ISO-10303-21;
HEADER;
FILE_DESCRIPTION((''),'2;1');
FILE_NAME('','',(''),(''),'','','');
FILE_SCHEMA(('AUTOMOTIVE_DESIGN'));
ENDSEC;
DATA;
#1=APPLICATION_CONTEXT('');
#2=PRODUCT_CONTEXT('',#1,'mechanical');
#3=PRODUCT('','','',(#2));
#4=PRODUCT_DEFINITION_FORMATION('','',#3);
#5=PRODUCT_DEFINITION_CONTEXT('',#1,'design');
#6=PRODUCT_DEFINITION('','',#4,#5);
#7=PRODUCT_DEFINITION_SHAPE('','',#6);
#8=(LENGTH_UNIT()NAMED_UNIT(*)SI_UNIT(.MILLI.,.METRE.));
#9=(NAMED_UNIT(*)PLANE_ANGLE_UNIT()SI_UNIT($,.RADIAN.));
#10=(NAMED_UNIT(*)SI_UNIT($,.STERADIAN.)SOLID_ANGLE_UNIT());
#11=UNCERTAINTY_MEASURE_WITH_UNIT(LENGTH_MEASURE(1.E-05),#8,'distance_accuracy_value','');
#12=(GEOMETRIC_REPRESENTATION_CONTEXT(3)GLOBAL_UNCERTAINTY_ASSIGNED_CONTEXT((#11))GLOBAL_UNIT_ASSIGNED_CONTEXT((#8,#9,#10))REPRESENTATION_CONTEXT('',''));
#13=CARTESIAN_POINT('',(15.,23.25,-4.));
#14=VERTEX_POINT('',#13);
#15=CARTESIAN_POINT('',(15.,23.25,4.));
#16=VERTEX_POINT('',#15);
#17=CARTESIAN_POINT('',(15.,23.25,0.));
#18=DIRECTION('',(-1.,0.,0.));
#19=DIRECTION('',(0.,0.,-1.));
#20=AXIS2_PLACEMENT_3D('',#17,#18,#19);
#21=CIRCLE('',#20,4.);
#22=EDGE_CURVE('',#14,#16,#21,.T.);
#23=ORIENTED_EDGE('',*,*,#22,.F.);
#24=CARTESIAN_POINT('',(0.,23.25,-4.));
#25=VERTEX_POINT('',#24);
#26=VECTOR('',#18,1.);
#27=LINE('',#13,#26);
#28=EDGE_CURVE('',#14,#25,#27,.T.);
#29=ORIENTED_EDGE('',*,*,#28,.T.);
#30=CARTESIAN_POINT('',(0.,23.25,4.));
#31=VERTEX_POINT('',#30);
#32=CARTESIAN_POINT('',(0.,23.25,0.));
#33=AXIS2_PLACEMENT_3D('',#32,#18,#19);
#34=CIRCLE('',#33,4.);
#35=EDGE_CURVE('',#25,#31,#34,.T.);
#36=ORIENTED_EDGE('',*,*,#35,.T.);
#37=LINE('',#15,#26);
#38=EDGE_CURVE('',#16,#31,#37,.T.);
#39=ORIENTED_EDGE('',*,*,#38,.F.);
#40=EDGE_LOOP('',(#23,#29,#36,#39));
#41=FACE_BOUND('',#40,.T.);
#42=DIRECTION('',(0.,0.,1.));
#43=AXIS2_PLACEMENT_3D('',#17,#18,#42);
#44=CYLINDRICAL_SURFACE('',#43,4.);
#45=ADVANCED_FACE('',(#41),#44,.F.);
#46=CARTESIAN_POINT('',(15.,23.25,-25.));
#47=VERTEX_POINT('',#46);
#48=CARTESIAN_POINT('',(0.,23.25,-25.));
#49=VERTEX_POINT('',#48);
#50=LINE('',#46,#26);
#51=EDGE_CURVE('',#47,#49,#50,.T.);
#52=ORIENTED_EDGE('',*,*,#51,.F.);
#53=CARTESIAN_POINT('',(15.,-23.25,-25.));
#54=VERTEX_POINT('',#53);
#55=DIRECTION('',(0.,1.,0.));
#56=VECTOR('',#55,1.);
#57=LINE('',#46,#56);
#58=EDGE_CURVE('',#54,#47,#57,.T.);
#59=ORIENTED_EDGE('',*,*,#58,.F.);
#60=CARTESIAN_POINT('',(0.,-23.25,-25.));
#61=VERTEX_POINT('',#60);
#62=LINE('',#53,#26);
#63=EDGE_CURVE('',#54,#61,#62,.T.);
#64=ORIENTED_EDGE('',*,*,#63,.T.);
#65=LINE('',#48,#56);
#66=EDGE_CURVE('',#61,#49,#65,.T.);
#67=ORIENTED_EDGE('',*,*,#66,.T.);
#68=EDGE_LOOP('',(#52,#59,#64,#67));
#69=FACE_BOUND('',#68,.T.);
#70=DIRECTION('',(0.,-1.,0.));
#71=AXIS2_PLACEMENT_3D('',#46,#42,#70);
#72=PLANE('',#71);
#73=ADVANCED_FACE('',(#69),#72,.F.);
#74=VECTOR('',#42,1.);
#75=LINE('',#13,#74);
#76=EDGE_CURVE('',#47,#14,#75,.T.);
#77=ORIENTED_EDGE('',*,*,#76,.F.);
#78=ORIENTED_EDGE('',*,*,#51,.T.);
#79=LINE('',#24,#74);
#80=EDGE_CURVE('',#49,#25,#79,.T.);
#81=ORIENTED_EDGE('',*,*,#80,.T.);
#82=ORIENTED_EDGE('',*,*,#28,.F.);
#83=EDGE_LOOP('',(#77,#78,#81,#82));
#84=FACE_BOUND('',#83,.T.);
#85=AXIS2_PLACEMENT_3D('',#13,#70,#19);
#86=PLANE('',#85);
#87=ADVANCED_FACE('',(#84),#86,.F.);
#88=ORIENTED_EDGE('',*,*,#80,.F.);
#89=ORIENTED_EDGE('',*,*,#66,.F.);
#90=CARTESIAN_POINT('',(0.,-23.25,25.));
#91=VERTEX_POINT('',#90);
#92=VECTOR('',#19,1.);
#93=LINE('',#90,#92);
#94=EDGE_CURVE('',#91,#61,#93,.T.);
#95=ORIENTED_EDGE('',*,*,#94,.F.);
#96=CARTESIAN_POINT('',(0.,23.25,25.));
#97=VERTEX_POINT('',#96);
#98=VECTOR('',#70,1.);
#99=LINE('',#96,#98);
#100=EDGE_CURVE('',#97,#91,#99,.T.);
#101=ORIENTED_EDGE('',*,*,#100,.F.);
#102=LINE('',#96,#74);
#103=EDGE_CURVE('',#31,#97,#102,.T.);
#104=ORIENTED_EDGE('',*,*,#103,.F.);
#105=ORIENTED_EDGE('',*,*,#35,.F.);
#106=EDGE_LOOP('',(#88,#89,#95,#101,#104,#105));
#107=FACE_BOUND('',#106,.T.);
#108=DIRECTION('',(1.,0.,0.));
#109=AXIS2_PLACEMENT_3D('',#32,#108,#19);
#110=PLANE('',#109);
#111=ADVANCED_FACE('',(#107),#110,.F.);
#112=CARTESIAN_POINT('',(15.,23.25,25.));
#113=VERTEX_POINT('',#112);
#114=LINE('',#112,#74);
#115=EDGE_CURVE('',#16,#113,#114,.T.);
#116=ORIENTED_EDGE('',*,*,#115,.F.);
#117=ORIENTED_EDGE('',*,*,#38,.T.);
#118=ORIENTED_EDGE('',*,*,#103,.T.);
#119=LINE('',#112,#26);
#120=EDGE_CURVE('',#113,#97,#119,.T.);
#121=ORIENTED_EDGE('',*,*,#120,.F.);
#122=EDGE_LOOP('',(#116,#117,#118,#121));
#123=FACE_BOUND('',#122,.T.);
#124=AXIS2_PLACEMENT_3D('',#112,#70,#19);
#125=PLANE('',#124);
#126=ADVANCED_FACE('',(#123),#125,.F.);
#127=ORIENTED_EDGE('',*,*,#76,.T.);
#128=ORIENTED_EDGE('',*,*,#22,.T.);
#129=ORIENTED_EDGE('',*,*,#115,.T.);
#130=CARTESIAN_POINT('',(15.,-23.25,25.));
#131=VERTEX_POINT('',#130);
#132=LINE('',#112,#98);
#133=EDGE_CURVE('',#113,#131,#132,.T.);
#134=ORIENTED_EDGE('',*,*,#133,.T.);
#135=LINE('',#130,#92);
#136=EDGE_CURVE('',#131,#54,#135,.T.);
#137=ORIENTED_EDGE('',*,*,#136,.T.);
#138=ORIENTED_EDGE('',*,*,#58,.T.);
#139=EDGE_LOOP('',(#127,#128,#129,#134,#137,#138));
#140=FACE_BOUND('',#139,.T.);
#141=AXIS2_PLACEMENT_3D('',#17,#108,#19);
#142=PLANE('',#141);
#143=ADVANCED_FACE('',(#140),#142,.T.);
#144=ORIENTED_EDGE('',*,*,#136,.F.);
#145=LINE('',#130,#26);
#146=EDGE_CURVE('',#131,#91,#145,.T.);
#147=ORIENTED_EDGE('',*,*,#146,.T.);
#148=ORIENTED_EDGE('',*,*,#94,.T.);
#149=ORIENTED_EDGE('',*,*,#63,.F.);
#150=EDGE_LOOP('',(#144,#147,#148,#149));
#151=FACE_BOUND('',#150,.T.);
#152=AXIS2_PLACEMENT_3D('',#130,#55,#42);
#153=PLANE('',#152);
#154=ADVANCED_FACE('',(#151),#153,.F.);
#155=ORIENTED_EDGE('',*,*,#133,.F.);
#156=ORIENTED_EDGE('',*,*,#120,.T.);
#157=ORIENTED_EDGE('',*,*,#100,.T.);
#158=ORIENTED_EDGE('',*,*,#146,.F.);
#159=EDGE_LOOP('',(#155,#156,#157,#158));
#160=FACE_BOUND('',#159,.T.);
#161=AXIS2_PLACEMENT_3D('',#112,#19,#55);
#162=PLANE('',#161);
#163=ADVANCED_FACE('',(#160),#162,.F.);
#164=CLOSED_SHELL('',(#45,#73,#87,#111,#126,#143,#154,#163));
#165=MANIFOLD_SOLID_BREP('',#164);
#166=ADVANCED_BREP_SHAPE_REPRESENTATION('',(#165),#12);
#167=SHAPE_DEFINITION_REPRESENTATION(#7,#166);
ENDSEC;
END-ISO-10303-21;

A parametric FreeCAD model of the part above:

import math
import FreeCAD as App
import Part
import Sketcher

V = App.Vector

doc = App.newDocument("Part")
body = doc.addObject("PartDesign::Body", "Body")

sketch1 = body.newObject("Sketcher::SketchObject", "Sketch")
sketch1.AttachmentSupport = (doc.getObject("YZ_Plane"), [""])
sketch1.MapMode = "FlatFace"
sketch1.addGeometry(Part.LineSegment(V(23.25, -25, 0), V(23.25, -4, 0)), False)
sketch1.addGeometry(Part.ArcOfCircle(Part.Circle(V(23.25, 0, 0), V(0, 0, 1), 4), math.radians(90), math.radians(270)), False)
sketch1.addGeometry(Part.LineSegment(V(23.25, 4, 0), V(23.25, 25, 0)), False)
sketch1.addGeometry(Part.LineSegment(V(23.25, 25, 0), V(-23.25, 25, 0)), False)
sketch1.addGeometry(Part.LineSegment(V(-23.25, 25, 0), V(-23.25, -25, 0)), False)
sketch1.addGeometry(Part.LineSegment(V(-23.25, -25, 0), V(23.25, -25, 0)), False)
sketch1.addConstraint(Sketcher.Constraint("Coincident", 0, 2, 1, 2))
sketch1.addConstraint(Sketcher.Constraint("Coincident", 1, 1, 2, 1))
sketch1.addConstraint(Sketcher.Constraint("Coincident", 2, 2, 3, 1))
sketch1.addConstraint(Sketcher.Constraint("Coincident", 3, 2, 4, 1))
sketch1.addConstraint(Sketcher.Constraint("Coincident", 4, 2, 5, 1))
sketch1.addConstraint(Sketcher.Constraint("Coincident", 5, 2, 0, 1))
sketch1.addConstraint(Sketcher.Constraint("Vertical", 0))
sketch1.addConstraint(Sketcher.Constraint("Vertical", 2))
sketch1.addConstraint(Sketcher.Constraint("Horizontal", 3))
sketch1.addConstraint(Sketcher.Constraint("Vertical", 4))
sketch1.addConstraint(Sketcher.Constraint("Horizontal", 5))
sketch1.addConstraint(Sketcher.Constraint("Symmetric", 2, 2, 4, 2, -1, 1))
sketch1.addConstraint(Sketcher.Constraint("Symmetric", 0, 2, 1, 1, -1))
sketch1.addConstraint(Sketcher.Constraint("Vertical", 1, 3, 0, 2))
sketch1.addConstraint(Sketcher.Constraint("Radius", 1, 4.0))
sketch1.addConstraint(Sketcher.Constraint("DistanceY", 0, 1, 0, 2, 21.0))
sketch1.addConstraint(Sketcher.Constraint("DistanceX", 3, 2, 3, 1, 46.5))
pad1 = body.newObject("PartDesign::Pad", "Pad")
pad1.Profile = sketch1
pad1.Length = 15

doc.recompute()
